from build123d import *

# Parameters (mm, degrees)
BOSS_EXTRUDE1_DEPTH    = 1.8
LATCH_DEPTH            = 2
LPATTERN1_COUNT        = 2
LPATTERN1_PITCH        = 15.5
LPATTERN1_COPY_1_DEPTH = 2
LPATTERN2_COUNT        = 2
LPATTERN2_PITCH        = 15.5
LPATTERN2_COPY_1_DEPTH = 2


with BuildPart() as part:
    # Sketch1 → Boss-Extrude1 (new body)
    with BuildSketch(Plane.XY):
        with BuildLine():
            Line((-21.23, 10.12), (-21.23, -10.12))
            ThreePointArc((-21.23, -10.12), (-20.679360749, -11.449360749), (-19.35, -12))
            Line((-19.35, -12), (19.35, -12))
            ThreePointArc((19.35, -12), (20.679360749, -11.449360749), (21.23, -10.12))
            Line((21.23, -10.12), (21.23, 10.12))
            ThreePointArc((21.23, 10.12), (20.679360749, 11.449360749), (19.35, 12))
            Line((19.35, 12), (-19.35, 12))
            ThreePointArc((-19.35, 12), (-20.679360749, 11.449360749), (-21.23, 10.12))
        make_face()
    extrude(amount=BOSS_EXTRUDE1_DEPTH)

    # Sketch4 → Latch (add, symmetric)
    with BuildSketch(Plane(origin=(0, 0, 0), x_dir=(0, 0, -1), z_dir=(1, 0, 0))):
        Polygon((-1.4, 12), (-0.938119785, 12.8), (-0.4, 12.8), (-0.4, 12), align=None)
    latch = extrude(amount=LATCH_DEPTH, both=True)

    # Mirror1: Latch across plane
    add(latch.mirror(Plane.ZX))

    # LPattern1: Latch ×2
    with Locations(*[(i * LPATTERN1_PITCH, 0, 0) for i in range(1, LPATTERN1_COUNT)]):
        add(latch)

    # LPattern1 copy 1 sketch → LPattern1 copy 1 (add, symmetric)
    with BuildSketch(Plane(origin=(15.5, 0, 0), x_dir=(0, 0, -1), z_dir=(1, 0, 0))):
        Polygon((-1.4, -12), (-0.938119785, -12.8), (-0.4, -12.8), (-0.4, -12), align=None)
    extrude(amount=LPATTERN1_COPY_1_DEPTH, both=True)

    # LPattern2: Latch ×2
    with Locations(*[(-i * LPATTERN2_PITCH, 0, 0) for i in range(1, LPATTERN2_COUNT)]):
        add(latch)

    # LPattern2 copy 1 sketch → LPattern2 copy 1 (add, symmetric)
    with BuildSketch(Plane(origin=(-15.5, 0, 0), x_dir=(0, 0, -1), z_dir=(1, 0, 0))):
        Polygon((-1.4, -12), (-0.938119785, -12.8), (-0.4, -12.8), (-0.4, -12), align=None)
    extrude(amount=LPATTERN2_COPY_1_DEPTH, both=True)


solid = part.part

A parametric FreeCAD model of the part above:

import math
import FreeCAD as App
import Part
import Sketcher
Q = App.Units.Quantity

doc = App.newDocument("Part")
body = doc.addObject("PartDesign::Body", "Body")

# Sketch on XY plane
sketch1 = doc.addObject("Sketcher::SketchObject", "Sketch")
body.addObject(sketch1)
sketch1.AttachmentSupport = (doc.XY_Plane, [""])
sketch1.MapMode = "FlatFace"
sketch1.addGeometry([
    Part.LineSegment(App.Vector(-21.2, 10.1, 0), App.Vector(-21.2, -10.1, 0)),  # 0
    Part.ArcOfCircle(Part.Circle(App.Vector(-19.4, -10.1, 0), App.Vector(0, 0, 1), 1.9), math.radians(180), math.radians(270)),  # 1
    Part.LineSegment(App.Vector(-19.4, -12, 0), App.Vector(19.4, -12, 0)),  # 2
    Part.ArcOfCircle(Part.Circle(App.Vector(19.4, -10.1, 0), App.Vector(0, 0, 1), 1.9), math.radians(-90), math.radians(0)),  # 3
    Part.LineSegment(App.Vector(21.2, -10.1, 0), App.Vector(21.2, 10.1, 0)),  # 4
    Part.ArcOfCircle(Part.Circle(App.Vector(19.4, 10.1, 0), App.Vector(0, 0, 1), 1.9), math.radians(0), math.radians(90)),  # 5
    Part.LineSegment(App.Vector(19.4, 12, 0), App.Vector(-19.4, 12, 0)),  # 6
    Part.ArcOfCircle(Part.Circle(App.Vector(-19.4, 10.1, 0), App.Vector(0, 0, 1), 1.9), math.radians(90), math.radians(180)),  # 7
], False)
sketch1.addConstraint([
    Sketcher.Constraint("Tangent", 0, 2, 1, 1),
    Sketcher.Constraint("Tangent", 1, 2, 2, 1),
    Sketcher.Constraint("Tangent", 2, 2, 3, 1),
    Sketcher.Constraint("Tangent", 3, 2, 4, 1),
    Sketcher.Constraint("Tangent", 4, 2, 5, 1),
    Sketcher.Constraint("Tangent", 5, 2, 6, 1),
    Sketcher.Constraint("Tangent", 6, 2, 7, 1),
    Sketcher.Constraint("Tangent", 7, 2, 0, 1),
    Sketcher.Constraint("Vertical", 0),
    Sketcher.Constraint("Horizontal", 2),
    Sketcher.Constraint("Vertical", 4),
    Sketcher.Constraint("Horizontal", 6),
    Sketcher.Constraint("Equal", 1, 3),
    Sketcher.Constraint("Equal", 3, 5),
    Sketcher.Constraint("Equal", 5, 7),
    Sketcher.Constraint("Symmetric", 1, 3, 5, 3, -1, 1),
    Sketcher.Constraint("Radius", 1, 1.88),
    Sketcher.Constraint("DistanceX", 2, 1, 2, 2, 38.7),
    Sketcher.Constraint("DistanceY", 1, 2, -1, 1, 12.0),
])
pad1 = doc.addObject("PartDesign::Pad", "Pad")
body.addObject(pad1)
pad1.Profile = sketch1
pad1.Length = 1.8

# Sketch on YZ plane
sketch2 = doc.addObject("Sketcher::SketchObject", "Sketch001")
body.addObject(sketch2)
sketch2.AttachmentSupport = (doc.YZ_Plane, [""])
sketch2.MapMode = "FlatFace"
sketch2.addGeometry([
    Part.LineSegment(App.Vector(12.8, 0.9, 0), App.Vector(12, 1.4, 0)),
    Part.LineSegment(App.Vector(12, 1.4, 0), App.Vector(12, 0.4, 0)),
    Part.LineSegment(App.Vector(12, 0.4, 0), App.Vector(12.8, 0.4, 0)),
    Part.LineSegment(App.Vector(12.8, 0.4, 0), App.Vector(12.8, 0.9, 0)),
], False)
sketch2.addConstraint([
    Sketcher.Constraint("Coincident", 0, 2, 1, 1),
    Sketcher.Constraint("Coincident", 1, 2, 2, 1),
    Sketcher.Constraint("Coincident", 2, 2, 3, 1),
    Sketcher.Constraint("Coincident", 3, 2, 0, 1),
    Sketcher.Constraint("Vertical", 1),
    Sketcher.Constraint("Horizontal", 2),
    Sketcher.Constraint("Vertical", 3),
    Sketcher.Constraint("DistanceY", 1, 2, 1, 1, 1.0),
    Sketcher.Constraint("Angle", 0, Q("150 deg")),
    Sketcher.Constraint("DistanceX", 2, 1, 2, 2, 0.8),
    Sketcher.Constraint("DistanceX", -1, 1, 0, 2, 12.0),
    Sketcher.Constraint("DistanceY", -1, 1, 0, 2, 1.4),
])
pad2 = doc.addObject("PartDesign::Pad", "Pad001")
body.addObject(pad2)
pad2.Profile = sketch2
pad2.Length = 4
pad2.Midplane = True
doc.recompute()

mirrored = doc.addObject("PartDesign::Mirrored", "Mirrored")
body.addObject(mirrored)
mirrored.Originals = [pad2]
mirrored.MirrorPlane = (doc.XZ_Plane, [""])
body.Tip = mirrored
doc.recompute()

linearpattern = doc.addObject("PartDesign::LinearPattern", "LinearPattern")
body.addObject(linearpattern)
linearpattern.Originals = [pad2]
linearpattern.Direction = (doc.X_Axis, [""])
linearpattern.Mode = "offset"
linearpattern.Offset = 15.5
linearpattern.Occurrences = 2
body.Tip = linearpattern

# Sketch on YZ plane
sketch3 = doc.addObject("Sketcher::SketchObject", "Sketch002")
body.addObject(sketch3)
sketch3.AttachmentSupport = (doc.YZ_Plane, [""])
sketch3.MapMode = "FlatFace"
sketch3.AttachmentOffset = App.Placement(App.Vector(0, 0, 15.5), App.Rotation())
sketch3.addGeometry([
    Part.LineSegment(App.Vector(-12, 1.4, 0), App.Vector(-12.8, 0.9, 0)),
    Part.LineSegment(App.Vector(-12.8, 0.9, 0), App.Vector(-12.8, 0.4, 0)),
    Part.LineSegment(App.Vector(-12.8, 0.4, 0), App.Vector(-12, 0.4, 0)),
    Part.LineSegment(App.Vector(-12, 0.4, 0), App.Vector(-12, 1.4, 0)),
], False)
sketch3.addConstraint([
    Sketcher.Constraint("Coincident", 0, 2, 1, 1),
    Sketcher.Constraint("Coincident", 1, 2, 2, 1),
    Sketcher.Constraint("Coincident", 2, 2, 3, 1),
    Sketcher.Constraint("Coincident", 3, 2, 0, 1),
    Sketcher.Constraint("Vertical", 1),
    Sketcher.Constraint("Horizontal", 2),
    Sketcher.Constraint("Vertical", 3),
    Sketcher.Constraint("DistanceY", 3, 1, 3, 2, 1.0),
    Sketcher.Constraint("Angle", 0, Q("-150 deg")),
    Sketcher.Constraint("DistanceX", 2, 1, 2, 2, 0.8),
    Sketcher.Constraint("DistanceX", 2, 2, -1, 1, 12.0),
    Sketcher.Constraint("DistanceY", -1, 1, 1, 2, 0.4),
])
pad3 = doc.addObject("PartDesign::Pad", "Pad002")
body.addObject(pad3)
pad3.Profile = sketch3
pad3.Length = 4
pad3.Midplane = True
doc.recompute()

linearpattern2 = doc.addObject("PartDesign::LinearPattern", "LinearPattern001")
body.addObject(linearpattern2)
linearpattern2.Originals = [pad2]
linearpattern2.Direction = (doc.X_Axis, [""])
linearpattern2.Mode = "offset"
linearpattern2.Offset = 15.5
linearpattern2.Occurrences = 2
linearpattern2.Reversed = True
body.Tip = linearpattern2

# Sketch on YZ plane
sketch4 = doc.addObject("Sketcher::SketchObject", "Sketch003")
body.addObject(sketch4)
sketch4.AttachmentSupport = (doc.YZ_Plane, [""])
sketch4.MapMode = "FlatFace"
sketch4.AttachmentOffset = App.Placement(App.Vector(0, 0, -15.5), App.Rotation())
sketch4.addGeometry([
    Part.LineSegment(App.Vector(-12, 1.4, 0), App.Vector(-12.8, 0.9, 0)),
    Part.LineSegment(App.Vector(-12.8, 0.9, 0), App.Vector(-12.8, 0.4, 0)),
    Part.LineSegment(App.Vector(-12.8, 0.4, 0), App.Vector(-12, 0.4, 0)),
    Part.LineSegment(App.Vector(-12, 0.4, 0), App.Vector(-12, 1.4, 0)),
], False)
sketch4.addConstraint([
    Sketcher.Constraint("Coincident", 0, 2, 1, 1),
    Sketcher.Constraint("Coincident", 1, 2, 2, 1),
    Sketcher.Constraint("Coincident", 2, 2, 3, 1),
    Sketcher.Constraint("Coincident", 3, 2, 0, 1),
    Sketcher.Constraint("Vertical", 1),
    Sketcher.Constraint("Horizontal", 2),
    Sketcher.Constraint("Vertical", 3),
    Sketcher.Constraint("DistanceY", 3, 1, 3, 2, 1.0),
    Sketcher.Constraint("Angle", 0, Q("-150 deg")),
    Sketcher.Constraint("DistanceX", 2, 1, 2, 2, 0.8),
    Sketcher.Constraint("DistanceX", 2, 2, -1, 1, 12.0),
    Sketcher.Constraint("DistanceY", -1, 1, 1, 2, 0.4),
])
pad4 = doc.addObject("PartDesign::Pad", "Pad003")
body.addObject(pad4)
pad4.Profile = sketch4
pad4.Length = 4
pad4.Midplane = True

doc.recompute()
